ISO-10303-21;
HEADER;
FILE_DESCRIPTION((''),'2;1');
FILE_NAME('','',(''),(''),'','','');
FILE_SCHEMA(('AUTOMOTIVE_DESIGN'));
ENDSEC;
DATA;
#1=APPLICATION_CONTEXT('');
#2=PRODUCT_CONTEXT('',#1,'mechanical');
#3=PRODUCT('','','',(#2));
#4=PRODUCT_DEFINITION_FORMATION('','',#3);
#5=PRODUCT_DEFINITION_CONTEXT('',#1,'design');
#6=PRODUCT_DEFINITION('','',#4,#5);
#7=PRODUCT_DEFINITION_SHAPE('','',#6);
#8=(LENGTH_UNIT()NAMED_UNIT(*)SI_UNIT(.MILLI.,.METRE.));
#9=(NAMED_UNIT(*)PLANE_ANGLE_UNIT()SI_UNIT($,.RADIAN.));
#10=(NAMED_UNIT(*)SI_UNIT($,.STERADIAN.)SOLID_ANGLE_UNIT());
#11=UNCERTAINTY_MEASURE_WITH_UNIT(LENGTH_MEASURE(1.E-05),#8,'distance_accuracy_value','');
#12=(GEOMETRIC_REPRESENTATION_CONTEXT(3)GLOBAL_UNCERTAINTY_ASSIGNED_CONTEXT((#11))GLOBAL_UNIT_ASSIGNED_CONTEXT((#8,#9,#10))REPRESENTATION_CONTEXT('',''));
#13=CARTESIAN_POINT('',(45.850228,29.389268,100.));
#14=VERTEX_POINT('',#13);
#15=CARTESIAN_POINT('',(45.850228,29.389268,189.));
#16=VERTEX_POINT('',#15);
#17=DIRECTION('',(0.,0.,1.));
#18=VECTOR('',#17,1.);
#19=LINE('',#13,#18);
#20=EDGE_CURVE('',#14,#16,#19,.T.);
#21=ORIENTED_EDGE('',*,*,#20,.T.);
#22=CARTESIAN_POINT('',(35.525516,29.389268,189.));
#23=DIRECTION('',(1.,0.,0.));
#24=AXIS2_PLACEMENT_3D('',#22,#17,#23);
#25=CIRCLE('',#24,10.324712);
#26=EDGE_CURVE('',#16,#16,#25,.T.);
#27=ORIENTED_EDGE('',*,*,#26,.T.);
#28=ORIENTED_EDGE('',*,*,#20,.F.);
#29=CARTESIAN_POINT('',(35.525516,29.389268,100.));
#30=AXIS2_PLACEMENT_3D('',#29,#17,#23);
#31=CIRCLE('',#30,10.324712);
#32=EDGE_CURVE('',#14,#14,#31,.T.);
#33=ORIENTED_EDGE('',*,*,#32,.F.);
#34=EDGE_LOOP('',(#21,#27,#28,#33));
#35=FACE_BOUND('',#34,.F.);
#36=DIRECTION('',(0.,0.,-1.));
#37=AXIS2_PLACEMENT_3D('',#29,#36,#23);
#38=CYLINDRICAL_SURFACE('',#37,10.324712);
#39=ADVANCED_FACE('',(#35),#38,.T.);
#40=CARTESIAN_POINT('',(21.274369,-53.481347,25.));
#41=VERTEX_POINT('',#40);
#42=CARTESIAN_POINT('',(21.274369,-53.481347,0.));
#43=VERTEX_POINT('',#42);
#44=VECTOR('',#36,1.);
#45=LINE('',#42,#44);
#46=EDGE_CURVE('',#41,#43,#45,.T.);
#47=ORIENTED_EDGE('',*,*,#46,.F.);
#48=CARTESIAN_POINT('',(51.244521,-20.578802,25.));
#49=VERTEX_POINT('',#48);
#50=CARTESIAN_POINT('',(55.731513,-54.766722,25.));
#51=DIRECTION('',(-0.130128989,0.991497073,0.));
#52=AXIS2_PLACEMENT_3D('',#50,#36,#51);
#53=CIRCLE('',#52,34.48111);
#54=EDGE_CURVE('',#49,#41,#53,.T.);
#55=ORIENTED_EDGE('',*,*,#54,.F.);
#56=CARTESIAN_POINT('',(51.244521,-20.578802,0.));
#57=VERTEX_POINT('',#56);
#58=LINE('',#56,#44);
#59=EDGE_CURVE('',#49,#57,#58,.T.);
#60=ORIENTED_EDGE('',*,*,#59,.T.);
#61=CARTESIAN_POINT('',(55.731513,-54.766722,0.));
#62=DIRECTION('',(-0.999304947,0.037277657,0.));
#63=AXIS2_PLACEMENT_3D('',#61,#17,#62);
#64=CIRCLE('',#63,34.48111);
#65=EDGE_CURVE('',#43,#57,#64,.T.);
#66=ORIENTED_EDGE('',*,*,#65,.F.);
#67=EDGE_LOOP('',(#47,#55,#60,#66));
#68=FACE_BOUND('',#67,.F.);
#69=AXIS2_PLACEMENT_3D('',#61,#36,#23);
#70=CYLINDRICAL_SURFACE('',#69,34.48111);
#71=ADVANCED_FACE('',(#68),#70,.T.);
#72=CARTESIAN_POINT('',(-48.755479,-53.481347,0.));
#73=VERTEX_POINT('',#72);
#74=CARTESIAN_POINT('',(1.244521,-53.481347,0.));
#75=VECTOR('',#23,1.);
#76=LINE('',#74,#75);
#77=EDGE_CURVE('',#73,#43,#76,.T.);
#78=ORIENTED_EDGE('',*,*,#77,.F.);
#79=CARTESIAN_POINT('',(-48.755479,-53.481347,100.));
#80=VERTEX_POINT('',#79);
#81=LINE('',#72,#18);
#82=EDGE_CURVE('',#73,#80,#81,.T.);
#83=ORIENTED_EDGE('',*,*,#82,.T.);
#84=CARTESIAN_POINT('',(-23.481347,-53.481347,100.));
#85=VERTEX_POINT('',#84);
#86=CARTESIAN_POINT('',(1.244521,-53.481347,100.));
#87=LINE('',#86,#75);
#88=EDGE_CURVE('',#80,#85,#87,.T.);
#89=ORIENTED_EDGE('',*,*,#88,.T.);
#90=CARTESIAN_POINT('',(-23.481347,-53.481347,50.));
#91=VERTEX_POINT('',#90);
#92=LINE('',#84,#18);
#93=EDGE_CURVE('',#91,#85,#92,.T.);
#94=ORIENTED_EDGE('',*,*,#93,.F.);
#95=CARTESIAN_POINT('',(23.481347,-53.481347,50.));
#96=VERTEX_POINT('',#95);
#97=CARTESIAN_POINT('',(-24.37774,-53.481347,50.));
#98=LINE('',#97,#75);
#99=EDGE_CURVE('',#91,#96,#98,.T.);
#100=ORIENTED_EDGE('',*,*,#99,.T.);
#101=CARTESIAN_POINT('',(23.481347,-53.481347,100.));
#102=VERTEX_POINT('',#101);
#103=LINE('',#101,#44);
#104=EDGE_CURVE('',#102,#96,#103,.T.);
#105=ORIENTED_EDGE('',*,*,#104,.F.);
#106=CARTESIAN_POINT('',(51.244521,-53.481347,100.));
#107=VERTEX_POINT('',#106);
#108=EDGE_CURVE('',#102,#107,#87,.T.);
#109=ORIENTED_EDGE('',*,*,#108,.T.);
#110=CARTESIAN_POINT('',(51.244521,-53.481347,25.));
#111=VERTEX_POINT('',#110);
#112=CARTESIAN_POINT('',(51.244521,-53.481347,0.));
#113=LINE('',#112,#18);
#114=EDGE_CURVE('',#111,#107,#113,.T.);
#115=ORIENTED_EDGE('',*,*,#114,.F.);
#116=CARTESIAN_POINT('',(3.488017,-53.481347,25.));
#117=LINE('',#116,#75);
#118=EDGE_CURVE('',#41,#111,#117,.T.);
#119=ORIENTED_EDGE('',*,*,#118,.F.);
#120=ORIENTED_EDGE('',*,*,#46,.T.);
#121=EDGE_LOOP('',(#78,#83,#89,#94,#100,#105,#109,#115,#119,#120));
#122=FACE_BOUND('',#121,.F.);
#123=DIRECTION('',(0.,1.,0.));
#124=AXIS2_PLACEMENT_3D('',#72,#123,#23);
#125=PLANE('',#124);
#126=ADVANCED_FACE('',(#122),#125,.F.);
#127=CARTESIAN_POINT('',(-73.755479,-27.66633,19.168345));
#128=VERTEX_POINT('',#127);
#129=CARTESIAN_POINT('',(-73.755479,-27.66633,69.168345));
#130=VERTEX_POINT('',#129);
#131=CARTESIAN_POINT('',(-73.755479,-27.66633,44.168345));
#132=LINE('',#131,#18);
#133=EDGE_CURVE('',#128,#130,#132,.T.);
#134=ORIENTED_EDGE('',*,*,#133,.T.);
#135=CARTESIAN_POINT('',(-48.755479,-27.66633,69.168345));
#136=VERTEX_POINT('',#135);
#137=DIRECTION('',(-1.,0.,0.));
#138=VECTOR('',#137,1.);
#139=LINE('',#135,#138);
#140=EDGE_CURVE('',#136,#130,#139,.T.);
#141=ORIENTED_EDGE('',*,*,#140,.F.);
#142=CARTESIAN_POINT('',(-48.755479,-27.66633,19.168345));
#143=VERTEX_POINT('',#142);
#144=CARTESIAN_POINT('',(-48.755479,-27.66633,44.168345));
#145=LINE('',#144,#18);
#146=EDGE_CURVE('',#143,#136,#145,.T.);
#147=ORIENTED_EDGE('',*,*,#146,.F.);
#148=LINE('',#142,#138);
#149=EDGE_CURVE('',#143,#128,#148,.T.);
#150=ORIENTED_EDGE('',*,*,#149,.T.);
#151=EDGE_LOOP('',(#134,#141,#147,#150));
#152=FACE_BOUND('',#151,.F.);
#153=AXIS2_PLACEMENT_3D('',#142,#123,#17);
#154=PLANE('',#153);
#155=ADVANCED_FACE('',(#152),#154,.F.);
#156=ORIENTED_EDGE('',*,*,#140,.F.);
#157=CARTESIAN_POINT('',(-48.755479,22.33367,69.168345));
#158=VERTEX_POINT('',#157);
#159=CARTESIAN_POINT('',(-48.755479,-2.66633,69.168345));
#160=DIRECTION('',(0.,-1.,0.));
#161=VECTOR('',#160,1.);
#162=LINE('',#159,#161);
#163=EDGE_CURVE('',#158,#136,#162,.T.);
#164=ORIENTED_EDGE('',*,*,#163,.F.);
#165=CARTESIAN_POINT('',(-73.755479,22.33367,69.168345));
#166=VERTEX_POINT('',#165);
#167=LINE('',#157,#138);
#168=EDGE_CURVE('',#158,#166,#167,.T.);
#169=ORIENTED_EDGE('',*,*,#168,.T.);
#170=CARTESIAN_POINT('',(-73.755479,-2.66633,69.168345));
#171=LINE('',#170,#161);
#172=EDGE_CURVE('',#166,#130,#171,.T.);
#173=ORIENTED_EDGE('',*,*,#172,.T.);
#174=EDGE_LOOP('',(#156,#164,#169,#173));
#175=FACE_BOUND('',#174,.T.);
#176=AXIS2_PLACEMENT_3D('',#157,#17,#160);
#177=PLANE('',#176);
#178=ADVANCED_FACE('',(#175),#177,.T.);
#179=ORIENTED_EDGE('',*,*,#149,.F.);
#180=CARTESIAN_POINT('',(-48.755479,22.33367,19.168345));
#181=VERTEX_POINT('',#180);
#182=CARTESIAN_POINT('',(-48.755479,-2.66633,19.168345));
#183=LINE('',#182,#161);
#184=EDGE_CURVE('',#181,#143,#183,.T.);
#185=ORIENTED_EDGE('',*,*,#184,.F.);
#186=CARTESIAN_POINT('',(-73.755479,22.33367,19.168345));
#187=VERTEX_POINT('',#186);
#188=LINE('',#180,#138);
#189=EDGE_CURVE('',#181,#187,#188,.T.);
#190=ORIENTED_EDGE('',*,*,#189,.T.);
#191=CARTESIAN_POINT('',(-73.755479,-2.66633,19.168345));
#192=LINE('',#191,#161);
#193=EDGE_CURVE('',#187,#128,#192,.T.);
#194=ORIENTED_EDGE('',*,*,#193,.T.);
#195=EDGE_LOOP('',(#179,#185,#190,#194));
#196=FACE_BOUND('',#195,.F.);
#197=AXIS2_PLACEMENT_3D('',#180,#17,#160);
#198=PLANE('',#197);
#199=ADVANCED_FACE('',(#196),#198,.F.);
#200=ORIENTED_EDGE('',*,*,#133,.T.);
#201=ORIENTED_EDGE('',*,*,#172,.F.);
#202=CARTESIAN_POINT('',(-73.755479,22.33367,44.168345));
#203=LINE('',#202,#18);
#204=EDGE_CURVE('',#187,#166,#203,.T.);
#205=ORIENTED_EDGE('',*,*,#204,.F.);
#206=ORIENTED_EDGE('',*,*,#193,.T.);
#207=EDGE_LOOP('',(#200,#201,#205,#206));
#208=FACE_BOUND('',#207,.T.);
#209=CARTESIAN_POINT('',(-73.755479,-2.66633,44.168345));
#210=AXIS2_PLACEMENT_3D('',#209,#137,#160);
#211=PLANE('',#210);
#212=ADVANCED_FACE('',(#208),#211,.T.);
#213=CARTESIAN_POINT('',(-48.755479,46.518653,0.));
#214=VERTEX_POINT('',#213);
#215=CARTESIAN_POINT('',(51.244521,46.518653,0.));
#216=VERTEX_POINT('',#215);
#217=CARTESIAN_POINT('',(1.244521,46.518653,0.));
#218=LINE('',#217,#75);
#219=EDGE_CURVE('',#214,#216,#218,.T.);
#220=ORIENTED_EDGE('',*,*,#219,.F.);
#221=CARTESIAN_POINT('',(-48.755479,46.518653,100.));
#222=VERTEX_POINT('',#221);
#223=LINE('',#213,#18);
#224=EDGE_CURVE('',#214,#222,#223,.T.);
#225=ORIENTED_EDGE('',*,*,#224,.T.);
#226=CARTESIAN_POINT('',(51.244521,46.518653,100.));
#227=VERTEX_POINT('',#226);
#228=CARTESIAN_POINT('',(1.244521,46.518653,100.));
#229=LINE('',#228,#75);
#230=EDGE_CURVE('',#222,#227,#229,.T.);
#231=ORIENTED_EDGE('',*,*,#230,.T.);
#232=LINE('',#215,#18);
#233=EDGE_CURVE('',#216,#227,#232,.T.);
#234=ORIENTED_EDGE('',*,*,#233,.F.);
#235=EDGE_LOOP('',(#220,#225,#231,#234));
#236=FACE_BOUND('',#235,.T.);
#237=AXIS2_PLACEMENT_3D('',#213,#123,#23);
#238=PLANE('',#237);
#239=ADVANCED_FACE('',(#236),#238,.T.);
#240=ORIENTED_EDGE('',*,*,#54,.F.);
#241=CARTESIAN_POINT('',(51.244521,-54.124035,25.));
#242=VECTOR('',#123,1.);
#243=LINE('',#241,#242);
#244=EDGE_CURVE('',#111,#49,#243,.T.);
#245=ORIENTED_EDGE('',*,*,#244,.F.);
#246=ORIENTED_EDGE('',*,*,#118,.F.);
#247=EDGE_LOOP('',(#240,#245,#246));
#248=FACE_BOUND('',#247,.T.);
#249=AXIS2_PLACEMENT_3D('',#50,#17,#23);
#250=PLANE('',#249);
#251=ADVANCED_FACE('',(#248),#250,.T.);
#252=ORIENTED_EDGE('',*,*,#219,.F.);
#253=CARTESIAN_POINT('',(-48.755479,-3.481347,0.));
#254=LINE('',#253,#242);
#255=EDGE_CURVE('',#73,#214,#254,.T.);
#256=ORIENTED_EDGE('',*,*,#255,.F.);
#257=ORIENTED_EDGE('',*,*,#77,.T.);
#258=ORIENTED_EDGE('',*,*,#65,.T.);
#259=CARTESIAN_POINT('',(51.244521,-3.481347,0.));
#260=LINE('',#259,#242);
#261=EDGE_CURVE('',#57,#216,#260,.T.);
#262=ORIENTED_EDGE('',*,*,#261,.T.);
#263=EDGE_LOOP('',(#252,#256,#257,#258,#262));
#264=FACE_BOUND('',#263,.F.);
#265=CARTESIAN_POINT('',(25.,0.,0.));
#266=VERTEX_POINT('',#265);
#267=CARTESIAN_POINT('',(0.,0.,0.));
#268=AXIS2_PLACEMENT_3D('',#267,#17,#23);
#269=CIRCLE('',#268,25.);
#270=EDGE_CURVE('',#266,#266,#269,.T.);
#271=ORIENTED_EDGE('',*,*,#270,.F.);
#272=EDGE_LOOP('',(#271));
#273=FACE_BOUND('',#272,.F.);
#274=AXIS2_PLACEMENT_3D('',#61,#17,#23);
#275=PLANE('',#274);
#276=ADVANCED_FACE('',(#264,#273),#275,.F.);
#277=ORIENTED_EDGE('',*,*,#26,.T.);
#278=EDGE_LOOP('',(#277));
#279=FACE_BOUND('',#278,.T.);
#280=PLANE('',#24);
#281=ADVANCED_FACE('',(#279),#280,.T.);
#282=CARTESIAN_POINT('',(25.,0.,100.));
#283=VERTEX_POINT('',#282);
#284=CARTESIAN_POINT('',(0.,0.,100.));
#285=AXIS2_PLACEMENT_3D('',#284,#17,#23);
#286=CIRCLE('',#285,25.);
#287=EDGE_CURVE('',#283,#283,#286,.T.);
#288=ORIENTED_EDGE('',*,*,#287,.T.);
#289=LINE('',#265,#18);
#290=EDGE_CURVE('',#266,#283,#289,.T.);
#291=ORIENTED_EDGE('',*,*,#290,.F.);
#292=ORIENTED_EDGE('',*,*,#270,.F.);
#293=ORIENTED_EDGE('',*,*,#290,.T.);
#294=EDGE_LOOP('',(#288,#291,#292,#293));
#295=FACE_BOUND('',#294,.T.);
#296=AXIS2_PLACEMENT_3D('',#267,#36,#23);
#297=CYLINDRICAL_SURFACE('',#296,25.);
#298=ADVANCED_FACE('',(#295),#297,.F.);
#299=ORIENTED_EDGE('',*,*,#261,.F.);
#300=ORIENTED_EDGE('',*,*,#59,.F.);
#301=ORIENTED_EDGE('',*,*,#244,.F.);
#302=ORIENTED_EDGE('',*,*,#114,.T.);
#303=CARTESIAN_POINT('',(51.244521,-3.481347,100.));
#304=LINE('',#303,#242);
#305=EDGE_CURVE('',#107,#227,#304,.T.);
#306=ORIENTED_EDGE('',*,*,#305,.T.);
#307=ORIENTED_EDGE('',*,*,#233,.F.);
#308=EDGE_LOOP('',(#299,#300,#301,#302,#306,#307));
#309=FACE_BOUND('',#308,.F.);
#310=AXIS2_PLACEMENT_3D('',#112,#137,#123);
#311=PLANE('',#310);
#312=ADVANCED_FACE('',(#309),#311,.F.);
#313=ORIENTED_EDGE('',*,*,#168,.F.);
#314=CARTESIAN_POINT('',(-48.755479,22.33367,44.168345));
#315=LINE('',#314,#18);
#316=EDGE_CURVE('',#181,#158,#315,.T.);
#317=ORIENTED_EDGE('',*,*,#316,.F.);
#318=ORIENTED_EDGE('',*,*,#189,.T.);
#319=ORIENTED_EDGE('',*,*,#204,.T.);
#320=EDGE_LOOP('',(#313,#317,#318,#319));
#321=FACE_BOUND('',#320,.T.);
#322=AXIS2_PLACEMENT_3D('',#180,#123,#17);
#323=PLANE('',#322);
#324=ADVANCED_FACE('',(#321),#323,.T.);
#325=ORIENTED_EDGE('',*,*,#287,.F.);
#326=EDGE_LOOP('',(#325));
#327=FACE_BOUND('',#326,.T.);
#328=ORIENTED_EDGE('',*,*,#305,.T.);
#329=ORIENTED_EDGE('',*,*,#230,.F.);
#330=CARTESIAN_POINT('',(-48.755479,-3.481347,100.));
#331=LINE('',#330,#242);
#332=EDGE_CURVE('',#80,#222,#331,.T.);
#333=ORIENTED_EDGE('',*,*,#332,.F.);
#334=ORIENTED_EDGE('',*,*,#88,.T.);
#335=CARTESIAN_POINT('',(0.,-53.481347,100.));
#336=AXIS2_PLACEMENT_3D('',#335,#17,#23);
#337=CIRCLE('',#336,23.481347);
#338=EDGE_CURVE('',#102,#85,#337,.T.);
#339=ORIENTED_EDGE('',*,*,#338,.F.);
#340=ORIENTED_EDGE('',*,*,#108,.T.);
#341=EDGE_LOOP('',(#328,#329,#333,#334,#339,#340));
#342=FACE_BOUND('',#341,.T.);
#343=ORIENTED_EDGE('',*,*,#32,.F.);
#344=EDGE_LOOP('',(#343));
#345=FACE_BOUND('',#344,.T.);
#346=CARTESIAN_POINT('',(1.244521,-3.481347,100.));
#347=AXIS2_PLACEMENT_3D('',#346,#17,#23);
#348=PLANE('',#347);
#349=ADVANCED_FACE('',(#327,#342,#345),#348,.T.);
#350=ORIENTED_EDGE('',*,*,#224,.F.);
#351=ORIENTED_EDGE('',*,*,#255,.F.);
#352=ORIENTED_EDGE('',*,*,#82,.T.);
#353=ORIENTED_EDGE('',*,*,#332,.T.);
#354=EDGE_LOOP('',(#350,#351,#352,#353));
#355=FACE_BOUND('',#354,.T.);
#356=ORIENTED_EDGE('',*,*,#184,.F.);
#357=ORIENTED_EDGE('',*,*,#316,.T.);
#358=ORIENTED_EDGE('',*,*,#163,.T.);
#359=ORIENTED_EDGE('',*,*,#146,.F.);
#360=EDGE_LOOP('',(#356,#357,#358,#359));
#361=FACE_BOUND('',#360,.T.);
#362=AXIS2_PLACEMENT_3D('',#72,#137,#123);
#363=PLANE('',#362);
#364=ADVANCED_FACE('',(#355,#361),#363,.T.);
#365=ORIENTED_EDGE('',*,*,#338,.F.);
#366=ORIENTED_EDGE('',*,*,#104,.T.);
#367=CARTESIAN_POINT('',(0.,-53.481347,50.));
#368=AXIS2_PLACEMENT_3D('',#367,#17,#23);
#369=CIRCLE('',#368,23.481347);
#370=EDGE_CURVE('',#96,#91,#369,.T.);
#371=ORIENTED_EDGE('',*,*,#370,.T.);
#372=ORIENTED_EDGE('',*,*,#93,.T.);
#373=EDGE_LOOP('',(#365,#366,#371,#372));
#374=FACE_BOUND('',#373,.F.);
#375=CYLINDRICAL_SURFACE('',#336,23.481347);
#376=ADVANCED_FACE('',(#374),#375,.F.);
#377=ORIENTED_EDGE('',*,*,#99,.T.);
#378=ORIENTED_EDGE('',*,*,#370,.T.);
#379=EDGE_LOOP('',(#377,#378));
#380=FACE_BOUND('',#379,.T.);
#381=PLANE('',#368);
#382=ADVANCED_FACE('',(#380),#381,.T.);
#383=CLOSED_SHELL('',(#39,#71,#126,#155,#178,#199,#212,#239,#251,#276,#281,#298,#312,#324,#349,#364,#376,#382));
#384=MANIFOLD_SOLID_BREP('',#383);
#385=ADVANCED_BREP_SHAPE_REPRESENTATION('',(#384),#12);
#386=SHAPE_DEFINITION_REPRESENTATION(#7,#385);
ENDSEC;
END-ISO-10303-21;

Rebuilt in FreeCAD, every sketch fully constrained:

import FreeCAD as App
import Part
import Sketcher
from FreeCAD import Vector

doc = App.newDocument("Part")
body = doc.addObject("PartDesign::Body", "Body")

# Sketch on XY plane
sketch1 = body.newObject("Sketcher::SketchObject", "Sketch")
sketch1.AttachmentSupport = (doc.getObject("XY_Plane"), [""])
sketch1.MapMode = "FlatFace"
sketch1.addGeometry([
    Part.LineSegment(Vector(-49, 47, 0), Vector(-49, -53, 0)),  # 0
    Part.LineSegment(Vector(-49, -53, 0), Vector(51, -53, 0)),  # 1
    Part.LineSegment(Vector(51, -53, 0), Vector(51, 47, 0)),  # 2
    Part.LineSegment(Vector(51, 47, 0), Vector(-49, 47, 0)),  # 3
    Part.Circle(Vector(0, 0, 0), Vector(0, 0, 1), 25),  # 4
], False)
sketch1.addConstraint([
    Sketcher.Constraint("Coincident", 0, 2, 1, 1),
    Sketcher.Constraint("Coincident", 1, 2, 2, 1),
    Sketcher.Constraint("Coincident", 2, 2, 3, 1),
    Sketcher.Constraint("Coincident", 3, 2, 0, 1),
    Sketcher.Constraint("Vertical", 0),
    Sketcher.Constraint("Horizontal", 1),
    Sketcher.Constraint("Vertical", 2),
    Sketcher.Constraint("Horizontal", 3),
    Sketcher.Constraint("Coincident", 4, 3, -1, 1),
    Sketcher.Constraint("Equal", 3, 0),
    Sketcher.Constraint("Diameter", 4, 50.0),
    Sketcher.Constraint("DistanceX", 1, 1, 1, 2, 100.0),
    Sketcher.Constraint("DistanceX", 0, 2, -1, 1, 48.755479),
    Sketcher.Constraint("DistanceY", 0, 2, -1, 1, 53.481347),
])
pad1 = body.newObject("PartDesign::Pad", "Pad")
pad1.Profile = sketch1
pad1.Length = 100

# Sketch on XY plane
sketch2 = body.newObject("Sketcher::SketchObject", "Sketch001")
sketch2.AttachmentSupport = (doc.getObject("XY_Plane"), [""])
sketch2.MapMode = "FlatFace"
sketch2.AttachmentOffset = App.Placement(Vector(0, 0, 100), App.Rotation())
sketch2.addGeometry(Part.Circle(Vector(0, -53, 0), Vector(0, 0, 1), 23), False)
sketch2.addConstraint([
    Sketcher.Constraint("PointOnObject", 0, 3, -2),
    Sketcher.Constraint("Diameter", 0, 46.962694),
    Sketcher.Constraint("DistanceY", 0, 3, -1, 1, 53.481347),
])
pocket1 = body.newObject("PartDesign::Pocket", "Pocket")
pocket1.Profile = sketch2
pocket1.Length = 50

# Sketch on YZ plane
sketch3 = body.newObject("Sketcher::SketchObject", "Sketch002")
sketch3.AttachmentSupport = (doc.getObject("YZ_Plane"), [""])
sketch3.MapMode = "FlatFace"
sketch3.AttachmentOffset = App.Placement(Vector(0, 0, -48.755479), App.Rotation())
sketch3.addGeometry([
    Part.LineSegment(Vector(22, 69, 0), Vector(22, 19, 0)),
    Part.LineSegment(Vector(22, 19, 0), Vector(-28, 19, 0)),
    Part.LineSegment(Vector(-28, 19, 0), Vector(-28, 69, 0)),
    Part.LineSegment(Vector(-28, 69, 0), Vector(22, 69, 0)),
], False)
sketch3.addConstraint([
    Sketcher.Constraint("Coincident", 0, 2, 1, 1),
    Sketcher.Constraint("Coincident", 1, 2, 2, 1),
    Sketcher.Constraint("Coincident", 2, 2, 3, 1),
    Sketcher.Constraint("Coincident", 3, 2, 0, 1),
    Sketcher.Constraint("Vertical", 0),
    Sketcher.Constraint("Horizontal", 1),
    Sketcher.Constraint("Vertical", 2),
    Sketcher.Constraint("Horizontal", 3),
    Sketcher.Constraint("Equal", 3, 0),
    Sketcher.Constraint("DistanceX", 1, 2, 1, 1, 50.0),
    Sketcher.Constraint("DistanceX", -1, 1, 0, 2, 22.33367),
    Sketcher.Constraint("DistanceY", -1, 1, 0, 2, 19.168345),
])
pad2 = body.newObject("PartDesign::Pad", "Pad001")
pad2.Profile = sketch3
pad2.Length = 25
pad2.Reversed = True

# Sketch on XY plane
sketch4 = body.newObject("Sketcher::SketchObject", "Sketch003")
sketch4.AttachmentSupport = (doc.getObject("XY_Plane"), [""])
sketch4.MapMode = "FlatFace"
sketch4.addGeometry(Part.Circle(Vector(56, -55, 0), Vector(0, 0, 1), 34), False)
sketch4.addConstraint([
    Sketcher.Constraint("Diameter", 0, 68.96222),
    Sketcher.Constraint("DistanceX", -1, 1, 0, 3, 55.731513),
    Sketcher.Constraint("DistanceY", 0, 3, -1, 1, 54.766722),
])
pad3 = body.newObject("PartDesign::Pad", "Pad002")
pad3.Profile = sketch4
pad3.Length = 25

# Sketch on XY plane
sketch5 = body.newObject("Sketcher::SketchObject", "Sketch004")
sketch5.AttachmentSupport = (doc.getObject("XY_Plane"), [""])
sketch5.MapMode = "FlatFace"
sketch5.AttachmentOffset = App.Placement(Vector(0, 0, 100), App.Rotation())
sketch5.addGeometry(Part.Circle(Vector(36, 29, 0), Vector(0, 0, 1), 10), False)
sketch5.addConstraint([
    Sketcher.Constraint("Diameter", 0, 20.649424),
    Sketcher.Constraint("DistanceY", -1, 1, 0, 3, 29.389268),
    Sketcher.Constraint("DistanceX", -1, 1, 0, 3, 35.525516),
])
pad4 = body.newObject("PartDesign::Pad", "Pad003")
pad4.Profile = sketch5
pad4.Length = 89

doc.recompute()
